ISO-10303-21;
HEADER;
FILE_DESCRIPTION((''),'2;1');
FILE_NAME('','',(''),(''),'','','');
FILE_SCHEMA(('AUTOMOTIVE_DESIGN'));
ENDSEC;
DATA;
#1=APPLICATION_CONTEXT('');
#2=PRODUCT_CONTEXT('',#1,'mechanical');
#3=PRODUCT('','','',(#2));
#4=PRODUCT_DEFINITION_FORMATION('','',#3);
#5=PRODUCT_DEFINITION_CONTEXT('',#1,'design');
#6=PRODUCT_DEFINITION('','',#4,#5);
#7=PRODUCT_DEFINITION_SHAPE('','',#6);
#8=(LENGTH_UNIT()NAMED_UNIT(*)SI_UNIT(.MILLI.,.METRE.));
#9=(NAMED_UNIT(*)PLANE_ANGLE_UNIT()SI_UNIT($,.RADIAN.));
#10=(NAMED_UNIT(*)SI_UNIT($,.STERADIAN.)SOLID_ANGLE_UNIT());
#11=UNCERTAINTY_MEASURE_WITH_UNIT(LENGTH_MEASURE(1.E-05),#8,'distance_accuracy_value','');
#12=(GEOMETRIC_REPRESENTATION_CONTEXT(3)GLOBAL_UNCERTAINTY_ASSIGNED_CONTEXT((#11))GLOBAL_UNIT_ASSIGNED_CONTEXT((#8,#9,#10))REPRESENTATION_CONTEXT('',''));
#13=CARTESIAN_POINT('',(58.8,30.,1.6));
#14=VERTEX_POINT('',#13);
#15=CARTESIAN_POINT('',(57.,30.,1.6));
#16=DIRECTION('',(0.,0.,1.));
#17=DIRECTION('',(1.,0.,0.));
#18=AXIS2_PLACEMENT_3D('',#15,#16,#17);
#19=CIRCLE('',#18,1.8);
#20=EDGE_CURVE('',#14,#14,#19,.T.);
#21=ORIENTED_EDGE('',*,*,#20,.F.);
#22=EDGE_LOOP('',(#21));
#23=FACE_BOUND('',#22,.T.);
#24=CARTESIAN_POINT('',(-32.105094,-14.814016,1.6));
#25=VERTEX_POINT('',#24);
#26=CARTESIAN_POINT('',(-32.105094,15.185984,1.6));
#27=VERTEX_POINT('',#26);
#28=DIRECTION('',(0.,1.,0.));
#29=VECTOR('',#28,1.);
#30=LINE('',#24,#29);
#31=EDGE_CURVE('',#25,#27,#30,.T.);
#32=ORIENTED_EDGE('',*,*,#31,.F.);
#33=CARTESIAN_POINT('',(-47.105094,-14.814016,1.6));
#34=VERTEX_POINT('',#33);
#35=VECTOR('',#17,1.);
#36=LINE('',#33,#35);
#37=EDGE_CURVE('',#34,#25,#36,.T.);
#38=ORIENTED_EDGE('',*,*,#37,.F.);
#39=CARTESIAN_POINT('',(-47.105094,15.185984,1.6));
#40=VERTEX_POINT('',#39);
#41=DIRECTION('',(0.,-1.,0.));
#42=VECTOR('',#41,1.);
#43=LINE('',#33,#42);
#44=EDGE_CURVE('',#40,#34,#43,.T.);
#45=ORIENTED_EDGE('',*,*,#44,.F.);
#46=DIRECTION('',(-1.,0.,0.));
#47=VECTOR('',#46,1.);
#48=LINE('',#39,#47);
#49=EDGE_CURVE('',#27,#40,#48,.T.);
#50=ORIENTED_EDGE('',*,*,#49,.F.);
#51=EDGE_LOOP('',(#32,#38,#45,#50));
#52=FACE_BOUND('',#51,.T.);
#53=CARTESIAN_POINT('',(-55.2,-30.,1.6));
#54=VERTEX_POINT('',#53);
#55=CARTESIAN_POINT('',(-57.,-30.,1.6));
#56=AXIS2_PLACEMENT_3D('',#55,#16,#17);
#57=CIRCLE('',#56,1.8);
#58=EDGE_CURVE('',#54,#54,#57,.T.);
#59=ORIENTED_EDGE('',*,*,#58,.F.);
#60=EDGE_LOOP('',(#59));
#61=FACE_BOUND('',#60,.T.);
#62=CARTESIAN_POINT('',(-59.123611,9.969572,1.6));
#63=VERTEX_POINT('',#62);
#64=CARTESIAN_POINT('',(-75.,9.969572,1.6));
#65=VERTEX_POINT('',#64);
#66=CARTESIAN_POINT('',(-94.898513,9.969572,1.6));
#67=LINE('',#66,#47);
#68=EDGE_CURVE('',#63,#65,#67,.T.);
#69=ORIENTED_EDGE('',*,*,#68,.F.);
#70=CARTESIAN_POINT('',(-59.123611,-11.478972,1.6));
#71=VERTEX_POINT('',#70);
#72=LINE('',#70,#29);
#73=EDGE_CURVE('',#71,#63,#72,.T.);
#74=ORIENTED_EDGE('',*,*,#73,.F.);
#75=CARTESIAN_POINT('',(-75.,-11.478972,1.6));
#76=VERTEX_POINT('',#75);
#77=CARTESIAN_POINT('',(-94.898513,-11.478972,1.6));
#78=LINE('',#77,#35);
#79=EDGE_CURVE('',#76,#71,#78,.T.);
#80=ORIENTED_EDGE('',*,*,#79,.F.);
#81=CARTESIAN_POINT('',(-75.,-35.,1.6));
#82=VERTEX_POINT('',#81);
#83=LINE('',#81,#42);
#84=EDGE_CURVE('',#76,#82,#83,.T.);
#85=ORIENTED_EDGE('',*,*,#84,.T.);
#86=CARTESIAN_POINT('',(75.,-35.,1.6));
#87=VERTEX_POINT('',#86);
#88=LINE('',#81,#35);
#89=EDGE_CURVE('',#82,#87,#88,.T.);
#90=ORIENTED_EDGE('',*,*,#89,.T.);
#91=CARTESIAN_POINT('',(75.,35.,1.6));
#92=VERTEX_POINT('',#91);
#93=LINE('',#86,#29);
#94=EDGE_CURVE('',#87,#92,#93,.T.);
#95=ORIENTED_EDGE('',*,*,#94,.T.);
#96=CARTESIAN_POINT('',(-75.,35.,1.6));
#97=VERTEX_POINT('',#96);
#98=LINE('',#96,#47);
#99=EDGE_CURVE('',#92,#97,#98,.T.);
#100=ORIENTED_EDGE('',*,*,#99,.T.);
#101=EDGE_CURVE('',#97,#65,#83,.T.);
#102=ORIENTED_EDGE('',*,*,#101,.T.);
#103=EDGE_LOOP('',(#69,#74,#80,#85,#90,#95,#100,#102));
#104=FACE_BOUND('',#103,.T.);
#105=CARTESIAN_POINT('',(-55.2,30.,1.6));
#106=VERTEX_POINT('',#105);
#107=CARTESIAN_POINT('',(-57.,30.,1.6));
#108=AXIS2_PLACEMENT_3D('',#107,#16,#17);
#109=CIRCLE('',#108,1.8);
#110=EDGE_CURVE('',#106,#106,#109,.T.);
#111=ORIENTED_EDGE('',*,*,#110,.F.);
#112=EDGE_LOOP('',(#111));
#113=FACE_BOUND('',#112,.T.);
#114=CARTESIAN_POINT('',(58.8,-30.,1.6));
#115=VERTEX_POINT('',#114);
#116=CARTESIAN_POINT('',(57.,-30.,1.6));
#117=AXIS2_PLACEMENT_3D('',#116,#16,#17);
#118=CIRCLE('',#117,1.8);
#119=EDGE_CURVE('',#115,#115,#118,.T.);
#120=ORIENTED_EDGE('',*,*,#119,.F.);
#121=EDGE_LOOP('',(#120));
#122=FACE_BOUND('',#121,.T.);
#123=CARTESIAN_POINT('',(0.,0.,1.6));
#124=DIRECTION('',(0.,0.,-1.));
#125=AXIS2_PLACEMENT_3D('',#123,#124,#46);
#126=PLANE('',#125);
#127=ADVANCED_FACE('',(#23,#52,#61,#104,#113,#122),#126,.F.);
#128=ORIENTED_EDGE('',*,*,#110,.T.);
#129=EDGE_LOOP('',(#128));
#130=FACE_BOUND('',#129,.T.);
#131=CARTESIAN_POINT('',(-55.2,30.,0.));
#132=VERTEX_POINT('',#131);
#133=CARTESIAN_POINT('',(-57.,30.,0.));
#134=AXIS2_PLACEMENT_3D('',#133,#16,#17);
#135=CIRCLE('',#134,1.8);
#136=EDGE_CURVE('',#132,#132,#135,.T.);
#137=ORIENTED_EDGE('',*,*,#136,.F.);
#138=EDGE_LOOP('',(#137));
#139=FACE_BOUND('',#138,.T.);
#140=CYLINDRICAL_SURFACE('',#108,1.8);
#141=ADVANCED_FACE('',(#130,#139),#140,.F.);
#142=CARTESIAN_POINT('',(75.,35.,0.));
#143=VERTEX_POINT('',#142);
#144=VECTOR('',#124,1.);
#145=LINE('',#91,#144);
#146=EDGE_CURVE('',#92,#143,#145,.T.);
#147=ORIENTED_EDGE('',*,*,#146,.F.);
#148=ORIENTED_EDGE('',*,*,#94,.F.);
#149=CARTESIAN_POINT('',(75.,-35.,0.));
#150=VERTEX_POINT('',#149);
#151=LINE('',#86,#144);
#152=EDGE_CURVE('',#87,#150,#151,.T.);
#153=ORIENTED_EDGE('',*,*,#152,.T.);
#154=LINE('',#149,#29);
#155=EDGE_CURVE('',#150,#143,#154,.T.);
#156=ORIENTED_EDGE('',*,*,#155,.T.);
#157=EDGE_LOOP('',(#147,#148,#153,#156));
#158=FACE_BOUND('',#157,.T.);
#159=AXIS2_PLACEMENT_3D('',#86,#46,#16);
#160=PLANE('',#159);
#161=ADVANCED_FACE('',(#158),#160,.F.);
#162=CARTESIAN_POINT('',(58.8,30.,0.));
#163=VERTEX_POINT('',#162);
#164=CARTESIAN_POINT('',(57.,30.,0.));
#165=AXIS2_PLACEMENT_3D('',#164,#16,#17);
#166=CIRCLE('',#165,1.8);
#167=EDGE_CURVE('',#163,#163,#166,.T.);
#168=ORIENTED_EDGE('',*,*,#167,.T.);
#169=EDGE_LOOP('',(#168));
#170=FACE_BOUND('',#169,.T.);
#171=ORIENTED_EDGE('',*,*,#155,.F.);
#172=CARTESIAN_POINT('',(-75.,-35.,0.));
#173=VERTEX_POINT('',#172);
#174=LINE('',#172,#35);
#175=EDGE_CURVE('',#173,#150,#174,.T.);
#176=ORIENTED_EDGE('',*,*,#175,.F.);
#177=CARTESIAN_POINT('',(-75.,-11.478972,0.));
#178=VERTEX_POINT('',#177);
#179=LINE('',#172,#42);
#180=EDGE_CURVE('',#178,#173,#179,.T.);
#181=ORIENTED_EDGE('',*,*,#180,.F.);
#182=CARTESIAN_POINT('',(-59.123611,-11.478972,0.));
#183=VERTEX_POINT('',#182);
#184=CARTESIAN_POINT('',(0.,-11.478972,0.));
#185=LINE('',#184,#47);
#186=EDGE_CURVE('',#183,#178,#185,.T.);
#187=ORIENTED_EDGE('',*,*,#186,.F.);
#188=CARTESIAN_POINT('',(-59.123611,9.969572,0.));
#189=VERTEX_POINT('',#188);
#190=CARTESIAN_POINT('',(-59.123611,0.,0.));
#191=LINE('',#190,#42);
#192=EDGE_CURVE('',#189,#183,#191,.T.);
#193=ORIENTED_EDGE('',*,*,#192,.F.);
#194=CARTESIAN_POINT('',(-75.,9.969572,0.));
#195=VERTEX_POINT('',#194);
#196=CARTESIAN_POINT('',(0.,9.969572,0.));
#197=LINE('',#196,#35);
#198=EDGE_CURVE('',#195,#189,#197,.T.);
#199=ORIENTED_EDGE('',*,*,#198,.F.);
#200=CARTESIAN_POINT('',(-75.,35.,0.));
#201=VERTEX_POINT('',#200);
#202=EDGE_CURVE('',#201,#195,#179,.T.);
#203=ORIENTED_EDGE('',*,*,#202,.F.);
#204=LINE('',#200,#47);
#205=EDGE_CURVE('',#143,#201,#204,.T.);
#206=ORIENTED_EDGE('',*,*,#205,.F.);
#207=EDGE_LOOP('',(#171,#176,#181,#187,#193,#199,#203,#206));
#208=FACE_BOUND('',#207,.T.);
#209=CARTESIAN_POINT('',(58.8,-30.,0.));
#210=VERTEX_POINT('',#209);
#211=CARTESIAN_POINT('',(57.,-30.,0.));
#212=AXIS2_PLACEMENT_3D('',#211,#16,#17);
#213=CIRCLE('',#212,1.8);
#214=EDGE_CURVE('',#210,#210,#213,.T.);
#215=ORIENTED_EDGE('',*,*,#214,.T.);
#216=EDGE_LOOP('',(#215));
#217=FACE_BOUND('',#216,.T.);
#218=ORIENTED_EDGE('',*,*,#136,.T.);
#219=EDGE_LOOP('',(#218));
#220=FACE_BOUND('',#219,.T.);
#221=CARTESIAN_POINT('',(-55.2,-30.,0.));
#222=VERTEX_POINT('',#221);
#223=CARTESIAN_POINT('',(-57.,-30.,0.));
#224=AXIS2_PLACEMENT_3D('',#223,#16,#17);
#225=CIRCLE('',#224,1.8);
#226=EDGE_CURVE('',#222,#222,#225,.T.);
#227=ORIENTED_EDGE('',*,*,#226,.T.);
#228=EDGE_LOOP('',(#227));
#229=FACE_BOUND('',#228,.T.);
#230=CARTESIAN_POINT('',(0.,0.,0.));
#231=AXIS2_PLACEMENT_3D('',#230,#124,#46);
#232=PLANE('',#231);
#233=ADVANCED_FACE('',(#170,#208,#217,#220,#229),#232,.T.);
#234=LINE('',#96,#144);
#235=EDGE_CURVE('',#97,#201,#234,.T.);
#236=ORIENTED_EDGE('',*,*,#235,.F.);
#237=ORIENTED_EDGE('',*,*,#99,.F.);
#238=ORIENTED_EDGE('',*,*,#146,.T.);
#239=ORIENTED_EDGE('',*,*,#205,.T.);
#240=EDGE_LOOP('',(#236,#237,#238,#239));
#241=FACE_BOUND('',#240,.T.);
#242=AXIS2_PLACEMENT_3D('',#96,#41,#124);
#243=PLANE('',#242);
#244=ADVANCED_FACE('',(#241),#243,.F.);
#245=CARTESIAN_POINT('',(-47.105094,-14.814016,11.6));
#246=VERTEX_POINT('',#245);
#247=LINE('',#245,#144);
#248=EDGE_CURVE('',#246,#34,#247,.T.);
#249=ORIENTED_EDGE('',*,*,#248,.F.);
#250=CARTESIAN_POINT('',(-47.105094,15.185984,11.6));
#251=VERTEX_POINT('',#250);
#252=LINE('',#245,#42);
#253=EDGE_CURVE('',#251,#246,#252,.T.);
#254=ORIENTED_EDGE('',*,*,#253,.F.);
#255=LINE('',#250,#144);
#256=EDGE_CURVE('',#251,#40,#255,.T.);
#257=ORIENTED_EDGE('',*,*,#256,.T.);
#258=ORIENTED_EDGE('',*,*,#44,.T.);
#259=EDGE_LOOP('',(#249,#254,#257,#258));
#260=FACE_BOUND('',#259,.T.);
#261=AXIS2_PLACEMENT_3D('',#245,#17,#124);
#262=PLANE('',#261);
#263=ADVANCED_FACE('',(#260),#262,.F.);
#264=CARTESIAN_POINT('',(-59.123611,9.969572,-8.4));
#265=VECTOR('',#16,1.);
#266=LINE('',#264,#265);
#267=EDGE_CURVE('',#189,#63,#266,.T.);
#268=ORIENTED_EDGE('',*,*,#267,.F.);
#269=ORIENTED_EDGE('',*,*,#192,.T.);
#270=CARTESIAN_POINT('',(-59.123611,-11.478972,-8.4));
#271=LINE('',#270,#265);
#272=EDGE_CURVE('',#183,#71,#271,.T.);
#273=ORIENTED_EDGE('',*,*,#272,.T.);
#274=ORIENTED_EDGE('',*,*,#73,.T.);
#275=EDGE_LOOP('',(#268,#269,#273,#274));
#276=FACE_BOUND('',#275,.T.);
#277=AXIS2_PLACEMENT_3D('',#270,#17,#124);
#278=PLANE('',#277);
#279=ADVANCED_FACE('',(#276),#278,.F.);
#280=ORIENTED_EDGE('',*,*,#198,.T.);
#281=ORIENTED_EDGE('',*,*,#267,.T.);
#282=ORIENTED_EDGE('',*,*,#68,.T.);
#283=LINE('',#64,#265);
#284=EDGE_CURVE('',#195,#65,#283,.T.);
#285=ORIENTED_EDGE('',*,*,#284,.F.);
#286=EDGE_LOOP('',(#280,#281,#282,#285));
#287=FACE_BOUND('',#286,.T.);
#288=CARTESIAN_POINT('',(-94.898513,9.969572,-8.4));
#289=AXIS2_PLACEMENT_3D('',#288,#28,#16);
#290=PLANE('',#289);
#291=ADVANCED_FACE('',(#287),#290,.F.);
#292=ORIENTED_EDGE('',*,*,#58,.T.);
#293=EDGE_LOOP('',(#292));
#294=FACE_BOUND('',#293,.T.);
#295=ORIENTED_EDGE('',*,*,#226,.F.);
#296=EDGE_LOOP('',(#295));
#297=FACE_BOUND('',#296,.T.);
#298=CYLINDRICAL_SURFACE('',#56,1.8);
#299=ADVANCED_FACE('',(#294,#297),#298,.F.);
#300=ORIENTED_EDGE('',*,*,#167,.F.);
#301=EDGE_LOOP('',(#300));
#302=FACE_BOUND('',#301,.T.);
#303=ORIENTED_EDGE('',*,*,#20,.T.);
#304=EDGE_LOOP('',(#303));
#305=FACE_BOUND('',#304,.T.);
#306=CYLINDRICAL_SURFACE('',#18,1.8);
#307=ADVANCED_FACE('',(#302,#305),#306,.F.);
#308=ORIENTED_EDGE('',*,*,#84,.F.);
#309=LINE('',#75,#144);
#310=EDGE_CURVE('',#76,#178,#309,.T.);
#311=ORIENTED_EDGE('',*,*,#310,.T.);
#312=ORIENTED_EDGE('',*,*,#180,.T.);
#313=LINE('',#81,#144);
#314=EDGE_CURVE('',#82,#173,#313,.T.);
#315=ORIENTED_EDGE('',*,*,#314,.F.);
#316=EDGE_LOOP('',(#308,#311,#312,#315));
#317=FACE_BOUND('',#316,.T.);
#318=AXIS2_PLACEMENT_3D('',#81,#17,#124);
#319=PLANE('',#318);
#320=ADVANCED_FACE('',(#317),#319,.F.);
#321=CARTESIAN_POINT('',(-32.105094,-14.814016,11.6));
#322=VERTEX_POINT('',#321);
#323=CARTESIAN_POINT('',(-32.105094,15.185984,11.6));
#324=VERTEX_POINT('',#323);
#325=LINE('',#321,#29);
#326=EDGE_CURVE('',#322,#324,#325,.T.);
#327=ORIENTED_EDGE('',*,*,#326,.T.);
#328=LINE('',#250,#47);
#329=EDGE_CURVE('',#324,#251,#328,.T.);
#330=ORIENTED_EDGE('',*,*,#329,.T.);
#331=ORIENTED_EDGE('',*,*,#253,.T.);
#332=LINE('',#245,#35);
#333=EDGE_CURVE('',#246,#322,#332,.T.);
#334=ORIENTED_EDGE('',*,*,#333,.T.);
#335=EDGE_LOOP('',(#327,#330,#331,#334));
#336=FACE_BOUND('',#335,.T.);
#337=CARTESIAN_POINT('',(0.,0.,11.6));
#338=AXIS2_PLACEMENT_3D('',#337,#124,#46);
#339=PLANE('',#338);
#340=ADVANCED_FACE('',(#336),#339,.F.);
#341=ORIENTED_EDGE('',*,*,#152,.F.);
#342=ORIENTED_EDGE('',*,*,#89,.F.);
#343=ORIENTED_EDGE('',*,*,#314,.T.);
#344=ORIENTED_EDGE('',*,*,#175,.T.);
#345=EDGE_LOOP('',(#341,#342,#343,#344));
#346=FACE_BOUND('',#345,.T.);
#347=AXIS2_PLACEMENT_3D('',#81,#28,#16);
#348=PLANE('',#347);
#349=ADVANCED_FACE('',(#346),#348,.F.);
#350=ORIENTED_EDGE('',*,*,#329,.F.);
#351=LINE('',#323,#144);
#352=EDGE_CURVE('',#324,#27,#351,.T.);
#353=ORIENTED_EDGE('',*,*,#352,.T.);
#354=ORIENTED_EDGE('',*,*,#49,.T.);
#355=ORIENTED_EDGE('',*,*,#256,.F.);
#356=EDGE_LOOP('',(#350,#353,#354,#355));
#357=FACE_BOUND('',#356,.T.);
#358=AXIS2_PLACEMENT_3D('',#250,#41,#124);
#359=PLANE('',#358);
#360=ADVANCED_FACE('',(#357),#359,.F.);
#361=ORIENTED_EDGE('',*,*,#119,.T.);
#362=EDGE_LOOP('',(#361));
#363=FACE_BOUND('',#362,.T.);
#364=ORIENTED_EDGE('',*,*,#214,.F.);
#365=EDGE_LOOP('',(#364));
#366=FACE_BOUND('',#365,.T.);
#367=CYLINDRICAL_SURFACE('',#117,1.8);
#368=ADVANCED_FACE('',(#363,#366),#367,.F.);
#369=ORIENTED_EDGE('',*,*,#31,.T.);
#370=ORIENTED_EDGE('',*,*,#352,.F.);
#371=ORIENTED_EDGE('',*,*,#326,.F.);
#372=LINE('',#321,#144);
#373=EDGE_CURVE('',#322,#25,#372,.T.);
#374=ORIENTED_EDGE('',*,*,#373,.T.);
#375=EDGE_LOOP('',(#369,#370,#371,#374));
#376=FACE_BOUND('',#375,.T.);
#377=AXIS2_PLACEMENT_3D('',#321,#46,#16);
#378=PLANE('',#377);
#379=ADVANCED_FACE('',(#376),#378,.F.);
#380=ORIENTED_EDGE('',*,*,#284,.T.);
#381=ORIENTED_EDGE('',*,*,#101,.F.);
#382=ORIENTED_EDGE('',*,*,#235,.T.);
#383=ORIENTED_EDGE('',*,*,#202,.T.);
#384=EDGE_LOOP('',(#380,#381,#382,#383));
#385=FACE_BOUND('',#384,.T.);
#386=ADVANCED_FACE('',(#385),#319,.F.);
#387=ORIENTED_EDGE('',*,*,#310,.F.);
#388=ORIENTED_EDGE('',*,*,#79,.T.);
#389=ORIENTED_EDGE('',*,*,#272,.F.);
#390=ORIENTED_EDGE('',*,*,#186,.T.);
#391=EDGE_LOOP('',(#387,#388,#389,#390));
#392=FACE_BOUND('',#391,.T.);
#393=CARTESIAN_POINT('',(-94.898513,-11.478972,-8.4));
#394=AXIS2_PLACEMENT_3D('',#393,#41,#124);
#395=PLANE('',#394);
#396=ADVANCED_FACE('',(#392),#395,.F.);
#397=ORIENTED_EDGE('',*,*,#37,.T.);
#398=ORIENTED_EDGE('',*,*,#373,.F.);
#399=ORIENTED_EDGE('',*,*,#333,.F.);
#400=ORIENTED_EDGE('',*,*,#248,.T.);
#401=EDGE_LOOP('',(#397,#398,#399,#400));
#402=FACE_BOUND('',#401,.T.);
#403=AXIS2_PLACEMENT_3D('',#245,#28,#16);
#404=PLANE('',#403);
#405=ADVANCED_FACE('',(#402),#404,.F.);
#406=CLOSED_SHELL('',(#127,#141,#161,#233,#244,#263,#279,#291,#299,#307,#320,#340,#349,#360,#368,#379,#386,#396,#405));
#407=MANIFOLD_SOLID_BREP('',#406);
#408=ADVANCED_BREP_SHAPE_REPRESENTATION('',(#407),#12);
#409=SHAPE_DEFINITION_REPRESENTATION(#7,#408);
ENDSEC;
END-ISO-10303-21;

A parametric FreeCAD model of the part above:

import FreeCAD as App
import Part
import Sketcher

V = App.Vector


def add_polygon(sketch, points):
    """Adds a closed chain of lines whose ends are joined by coincident constraints."""
    first, n = sketch.GeometryCount, len(points)
    for a, b in zip(points, points[1:] + points[:1]):
        sketch.addGeometry(Part.LineSegment(App.Vector(*a, 0), App.Vector(*b, 0)), False)
    for i in range(n):
        sketch.addConstraint(Sketcher.Constraint("Coincident", first + i, 2, first + (i + 1) % n, 1))

doc = App.newDocument("Part")
body = doc.addObject("PartDesign::Body", "Body")

sketch1 = body.newObject("Sketcher::SketchObject", "Sketch")
sketch1.AttachmentSupport = (doc.getObject("XY_Plane"), [""])
sketch1.MapMode = "FlatFace"
add_polygon(sketch1, [(-75, 35), (-75, -35), (75, -35), (75, 35)])
sketch1.addConstraint([
    Sketcher.Constraint("Vertical", 0),
    Sketcher.Constraint("Horizontal", 1),
    Sketcher.Constraint("Vertical", 2),
    Sketcher.Constraint("Horizontal", 3),
    Sketcher.Constraint("Symmetric", 0, 2, 2, 2, -1, 1),
    Sketcher.Constraint("DistanceX", 1, 1, 1, 2, 150.0),
    Sketcher.Constraint("DistanceY", 0, 2, 0, 1, 70.0),
])
pad1 = body.newObject("PartDesign::Pad", "Pad")
pad1.Profile = sketch1
pad1.Length = 1.6

sketch2 = body.newObject("Sketcher::SketchObject", "Sketch001")
sketch2.AttachmentSupport = (doc.getObject("XY_Plane"), [""])
sketch2.MapMode = "FlatFace"
sketch2.AttachmentOffset = App.Placement(V(0, 0, 1.6), App.Rotation())
sketch2.addGeometry([
    Part.Circle(V(57, 30, 0), V(0, 0, 1), 1.8),
    Part.Circle(V(57, -30, 0), V(0, 0, 1), 1.8),
    Part.Circle(V(-57, -30, 0), V(0, 0, 1), 1.8),
    Part.Circle(V(-57, 30, 0), V(0, 0, 1), 1.8),
], False)
sketch2.addConstraint([
    Sketcher.Constraint("Equal", 0, 1),
    Sketcher.Constraint("Equal", 1, 2),
    Sketcher.Constraint("Equal", 2, 3),
    Sketcher.Constraint("Symmetric", 0, 3, 2, 3, -1, 1),
    Sketcher.Constraint("Symmetric", 1, 3, 3, 3, -1, 1),
    Sketcher.Constraint("Symmetric", 1, 3, 2, 3, -2),
    Sketcher.Constraint("Diameter", 0, 3.6),
    Sketcher.Constraint("DistanceX", -1, 1, 0, 3, 57.0),
    Sketcher.Constraint("DistanceY", -1, 1, 0, 3, 30.0),
])
doc.recompute()
hole = body.newObject("PartDesign::Hole", "Hole")
hole.Profile = sketch2
hole.ThreadType = "None"
hole.Diameter = 3.6
hole.DepthType = "ThroughAll"

sketch3 = body.newObject("Sketcher::SketchObject", "Sketch002")
sketch3.AttachmentSupport = (doc.getObject("XY_Plane"), [""])
sketch3.MapMode = "FlatFace"
sketch3.AttachmentOffset = App.Placement(V(0, 0, 1.6), App.Rotation())
add_polygon(sketch3, [(-95, 10), (-95, -11), (-59, -11), (-59, 10)])
sketch3.addConstraint([
    Sketcher.Constraint("Vertical", 0),
    Sketcher.Constraint("Horizontal", 1),
    Sketcher.Constraint("Vertical", 2),
    Sketcher.Constraint("Horizontal", 3),
    Sketcher.Constraint("DistanceX", 1, 1, 1, 2, 35.774902),
    Sketcher.Constraint("DistanceY", 0, 2, 0, 1, 21.448544),
    Sketcher.Constraint("DistanceX", 1, 2, -1, 1, 59.123611),
    Sketcher.Constraint("DistanceY", -1, 1, 2, 2, 9.969572),
])
pocket1 = body.newObject("PartDesign::Pocket", "Pocket")
pocket1.Profile = sketch3
pocket1.Length = 10

sketch4 = body.newObject("Sketcher::SketchObject", "Sketch003")
sketch4.AttachmentSupport = (doc.getObject("XY_Plane"), [""])
sketch4.MapMode = "FlatFace"
sketch4.AttachmentOffset = App.Placement(V(0, 0, 1.6), App.Rotation())
add_polygon(sketch4, [(-47, 15), (-47, -15), (-32, -15), (-32, 15)])
sketch4.addConstraint([
    Sketcher.Constraint("Vertical", 0),
    Sketcher.Constraint("Horizontal", 1),
    Sketcher.Constraint("Vertical", 2),
    Sketcher.Constraint("Horizontal", 3),
    Sketcher.Constraint("DistanceX", 1, 1, 1, 2, 15.0),
    Sketcher.Constraint("DistanceY", 0, 2, 0, 1, 30.0),
    Sketcher.Constraint("DistanceX", 0, 2, -1, 1, 47.105094),
    Sketcher.Constraint("DistanceY", 0, 2, -1, 1, 14.814016),
])
pad2 = body.newObject("PartDesign::Pad", "Pad001")
pad2.Profile = sketch4
pad2.Length = 10

doc.recompute()
